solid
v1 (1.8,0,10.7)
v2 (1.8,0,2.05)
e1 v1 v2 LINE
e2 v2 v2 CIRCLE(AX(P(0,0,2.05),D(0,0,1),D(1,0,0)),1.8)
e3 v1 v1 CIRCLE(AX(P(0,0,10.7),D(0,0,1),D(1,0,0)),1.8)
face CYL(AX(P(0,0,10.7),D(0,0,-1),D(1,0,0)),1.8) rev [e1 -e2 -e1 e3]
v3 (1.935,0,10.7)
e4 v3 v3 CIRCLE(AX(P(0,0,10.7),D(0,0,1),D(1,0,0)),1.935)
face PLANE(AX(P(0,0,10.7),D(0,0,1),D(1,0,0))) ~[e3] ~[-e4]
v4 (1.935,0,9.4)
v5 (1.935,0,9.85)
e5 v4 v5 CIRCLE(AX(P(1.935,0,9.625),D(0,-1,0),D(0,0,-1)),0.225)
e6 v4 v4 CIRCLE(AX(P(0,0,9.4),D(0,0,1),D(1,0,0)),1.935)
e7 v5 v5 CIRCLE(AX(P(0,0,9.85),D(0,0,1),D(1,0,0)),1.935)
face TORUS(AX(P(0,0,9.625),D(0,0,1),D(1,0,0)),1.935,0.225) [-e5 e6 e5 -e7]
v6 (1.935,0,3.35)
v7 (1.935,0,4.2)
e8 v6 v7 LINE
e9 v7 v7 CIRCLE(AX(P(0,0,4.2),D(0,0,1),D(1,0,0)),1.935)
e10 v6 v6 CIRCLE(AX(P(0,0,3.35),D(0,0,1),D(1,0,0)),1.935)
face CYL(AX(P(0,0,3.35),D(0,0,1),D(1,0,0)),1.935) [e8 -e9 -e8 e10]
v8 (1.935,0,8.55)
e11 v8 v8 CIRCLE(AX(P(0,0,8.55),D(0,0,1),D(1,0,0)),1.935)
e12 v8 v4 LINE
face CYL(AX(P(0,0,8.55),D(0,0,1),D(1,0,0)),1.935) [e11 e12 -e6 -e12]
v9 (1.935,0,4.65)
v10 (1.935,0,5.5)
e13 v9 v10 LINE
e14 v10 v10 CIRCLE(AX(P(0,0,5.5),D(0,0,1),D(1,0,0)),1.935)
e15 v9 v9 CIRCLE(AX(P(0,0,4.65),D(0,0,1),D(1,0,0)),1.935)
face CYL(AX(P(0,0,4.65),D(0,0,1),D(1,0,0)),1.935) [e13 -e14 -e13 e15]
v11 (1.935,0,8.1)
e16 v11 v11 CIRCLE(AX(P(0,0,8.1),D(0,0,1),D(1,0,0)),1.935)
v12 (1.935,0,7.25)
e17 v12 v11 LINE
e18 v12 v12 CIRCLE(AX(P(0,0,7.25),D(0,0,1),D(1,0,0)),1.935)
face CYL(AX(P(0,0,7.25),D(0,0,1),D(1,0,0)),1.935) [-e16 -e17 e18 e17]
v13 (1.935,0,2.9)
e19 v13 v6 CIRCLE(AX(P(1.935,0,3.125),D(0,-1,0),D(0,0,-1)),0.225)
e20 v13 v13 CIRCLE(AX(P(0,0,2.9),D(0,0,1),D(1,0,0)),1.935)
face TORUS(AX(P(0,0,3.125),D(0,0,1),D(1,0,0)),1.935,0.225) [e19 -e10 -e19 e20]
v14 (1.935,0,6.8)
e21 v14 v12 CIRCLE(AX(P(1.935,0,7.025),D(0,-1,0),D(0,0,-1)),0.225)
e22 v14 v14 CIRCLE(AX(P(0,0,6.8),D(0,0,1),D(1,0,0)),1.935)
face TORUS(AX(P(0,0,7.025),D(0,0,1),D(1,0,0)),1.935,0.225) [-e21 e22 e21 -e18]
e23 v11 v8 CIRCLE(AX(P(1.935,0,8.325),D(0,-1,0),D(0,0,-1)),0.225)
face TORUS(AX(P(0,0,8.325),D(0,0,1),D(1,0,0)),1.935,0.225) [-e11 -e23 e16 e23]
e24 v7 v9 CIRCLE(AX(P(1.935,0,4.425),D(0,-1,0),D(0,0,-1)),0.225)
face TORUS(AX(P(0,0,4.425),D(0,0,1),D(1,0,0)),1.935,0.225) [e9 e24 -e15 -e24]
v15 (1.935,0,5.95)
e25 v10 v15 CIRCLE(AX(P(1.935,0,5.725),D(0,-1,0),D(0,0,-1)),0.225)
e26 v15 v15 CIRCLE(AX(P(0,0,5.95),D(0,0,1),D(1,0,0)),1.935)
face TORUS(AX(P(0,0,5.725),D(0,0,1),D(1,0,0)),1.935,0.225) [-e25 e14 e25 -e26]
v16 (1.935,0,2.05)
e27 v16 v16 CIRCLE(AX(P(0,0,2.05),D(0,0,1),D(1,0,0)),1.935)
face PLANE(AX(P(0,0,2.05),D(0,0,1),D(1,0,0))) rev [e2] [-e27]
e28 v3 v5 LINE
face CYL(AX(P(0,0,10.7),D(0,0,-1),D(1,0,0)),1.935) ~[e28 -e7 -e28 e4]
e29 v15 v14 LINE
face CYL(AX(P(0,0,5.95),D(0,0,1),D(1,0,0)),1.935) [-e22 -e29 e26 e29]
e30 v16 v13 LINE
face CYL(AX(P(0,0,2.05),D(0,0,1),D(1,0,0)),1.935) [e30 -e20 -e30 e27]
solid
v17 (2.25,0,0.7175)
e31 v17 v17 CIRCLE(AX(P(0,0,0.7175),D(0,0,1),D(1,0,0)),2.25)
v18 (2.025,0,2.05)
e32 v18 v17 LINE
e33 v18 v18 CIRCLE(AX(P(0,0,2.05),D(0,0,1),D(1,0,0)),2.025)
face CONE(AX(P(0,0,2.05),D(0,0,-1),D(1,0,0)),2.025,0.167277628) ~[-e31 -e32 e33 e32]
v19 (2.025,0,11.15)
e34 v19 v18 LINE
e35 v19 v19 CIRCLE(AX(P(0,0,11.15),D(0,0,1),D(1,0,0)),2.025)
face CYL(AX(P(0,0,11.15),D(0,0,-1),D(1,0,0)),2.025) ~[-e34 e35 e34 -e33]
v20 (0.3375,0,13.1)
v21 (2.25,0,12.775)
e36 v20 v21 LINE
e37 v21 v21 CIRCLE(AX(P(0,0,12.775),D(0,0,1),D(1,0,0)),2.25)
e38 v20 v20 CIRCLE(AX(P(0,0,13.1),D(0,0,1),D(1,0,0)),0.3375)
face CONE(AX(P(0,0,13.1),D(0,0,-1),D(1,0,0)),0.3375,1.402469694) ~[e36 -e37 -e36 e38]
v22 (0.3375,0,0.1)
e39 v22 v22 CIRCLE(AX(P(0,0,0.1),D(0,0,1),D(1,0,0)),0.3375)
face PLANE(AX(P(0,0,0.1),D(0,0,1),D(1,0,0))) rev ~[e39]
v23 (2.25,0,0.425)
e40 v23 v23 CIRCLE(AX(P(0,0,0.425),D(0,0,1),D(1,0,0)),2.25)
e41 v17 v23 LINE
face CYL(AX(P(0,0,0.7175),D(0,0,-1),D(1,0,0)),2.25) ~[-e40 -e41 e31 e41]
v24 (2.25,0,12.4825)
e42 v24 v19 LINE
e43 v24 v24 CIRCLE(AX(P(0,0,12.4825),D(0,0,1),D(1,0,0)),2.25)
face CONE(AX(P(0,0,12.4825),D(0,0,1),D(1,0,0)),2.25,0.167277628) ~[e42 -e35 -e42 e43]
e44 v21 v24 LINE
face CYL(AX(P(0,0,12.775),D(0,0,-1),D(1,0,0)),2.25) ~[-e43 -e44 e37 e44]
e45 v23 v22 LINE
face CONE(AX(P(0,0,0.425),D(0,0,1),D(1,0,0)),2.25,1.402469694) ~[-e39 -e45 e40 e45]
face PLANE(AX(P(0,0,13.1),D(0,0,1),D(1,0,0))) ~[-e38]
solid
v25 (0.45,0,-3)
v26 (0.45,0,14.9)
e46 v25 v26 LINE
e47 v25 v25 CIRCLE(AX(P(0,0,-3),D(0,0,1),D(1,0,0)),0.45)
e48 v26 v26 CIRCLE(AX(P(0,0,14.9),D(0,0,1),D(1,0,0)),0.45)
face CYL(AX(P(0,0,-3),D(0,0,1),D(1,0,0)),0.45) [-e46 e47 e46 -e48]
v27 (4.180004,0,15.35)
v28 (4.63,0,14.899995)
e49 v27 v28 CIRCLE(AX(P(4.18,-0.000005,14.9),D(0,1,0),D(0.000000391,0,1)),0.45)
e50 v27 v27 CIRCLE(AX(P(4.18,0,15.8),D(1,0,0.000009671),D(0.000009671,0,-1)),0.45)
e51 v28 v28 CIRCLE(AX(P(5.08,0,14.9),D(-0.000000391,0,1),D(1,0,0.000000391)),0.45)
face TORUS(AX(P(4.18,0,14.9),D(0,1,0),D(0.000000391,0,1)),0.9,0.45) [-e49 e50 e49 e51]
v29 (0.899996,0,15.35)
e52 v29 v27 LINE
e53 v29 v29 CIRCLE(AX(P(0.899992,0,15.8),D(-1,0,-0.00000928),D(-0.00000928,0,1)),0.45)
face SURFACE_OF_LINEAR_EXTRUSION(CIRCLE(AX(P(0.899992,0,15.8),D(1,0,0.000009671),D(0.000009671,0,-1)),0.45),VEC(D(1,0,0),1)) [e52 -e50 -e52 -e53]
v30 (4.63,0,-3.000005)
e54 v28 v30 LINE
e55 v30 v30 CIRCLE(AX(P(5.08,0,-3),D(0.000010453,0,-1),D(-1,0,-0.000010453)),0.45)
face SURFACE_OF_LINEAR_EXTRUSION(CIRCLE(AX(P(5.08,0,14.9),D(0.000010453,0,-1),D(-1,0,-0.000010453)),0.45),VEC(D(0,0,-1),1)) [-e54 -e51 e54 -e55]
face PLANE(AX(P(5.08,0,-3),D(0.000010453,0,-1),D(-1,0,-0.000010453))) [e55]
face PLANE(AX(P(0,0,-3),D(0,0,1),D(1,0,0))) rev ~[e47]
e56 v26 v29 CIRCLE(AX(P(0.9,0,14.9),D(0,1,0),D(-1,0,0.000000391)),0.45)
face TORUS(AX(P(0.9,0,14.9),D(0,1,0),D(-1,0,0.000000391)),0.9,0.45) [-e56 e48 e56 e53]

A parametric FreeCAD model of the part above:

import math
import FreeCAD as App
import Part
import Sketcher

V = App.Vector
Q = App.Units.Quantity

doc = App.newDocument("Part")
body = doc.addObject("PartDesign::Body", "Body")

# Sketch on XY plane
sketch1 = body.newObject("Sketcher::SketchObject", "Sketch")
sketch1.AttachmentSupport = (doc.getObject("XY_Plane"), [""])
sketch1.MapMode = "FlatFace"
sketch1.AttachmentOffset = App.Placement(V(0, 0, -2), App.Rotation())
sketch1.addGeometry(Part.Circle(V(0, 0, 0), V(0, 0, 1), 0.45), False)
sketch1.addConstraint(Sketcher.Constraint("Coincident", 0, 3, -1, 1))
sketch1.addConstraint(Sketcher.Constraint("Diameter", 0, Q("0.9 mm")))

# Sketch on XZ plane
sketch2 = body.newObject("Sketcher::SketchObject", "Sketch001")
sketch2.AttachmentSupport = (doc.getObject("XZ_Plane"), [""])
sketch2.MapMode = "FlatFace"
sketch2.addGeometry(Part.LineSegment(V(0, -3, 0), V(0, 14.9, 0)), False)
sketch2.addGeometry(Part.ArcOfCircle(Part.Circle(V(0.9, 14.9, 0), V(0, 0, 1), 0.9), math.radians(90.000532), math.radians(179.999978)), False)
sketch2.addGeometry(Part.LineSegment(V(0.899992, 15.8, 0), V(4.18, 15.8, 0)), False)
sketch2.addGeometry(Part.ArcOfCircle(Part.Circle(V(4.18, 14.9, 0), V(0, 0, 1), 0.9), math.radians(0.000022), math.radians(89.999978)), False)
sketch2.addGeometry(Part.LineSegment(V(5.08, 14.9, 0), V(5.08, -3, 0)), False)
sketch2.addConstraint(Sketcher.Constraint("Tangent", 0, 2, 1, 2))
sketch2.addConstraint(Sketcher.Constraint("Coincident", 1, 1, 2, 1))
sketch2.addConstraint(Sketcher.Constraint("Tangent", 2, 2, 3, 2))
sketch2.addConstraint(Sketcher.Constraint("Tangent", 3, 1, 4, 1))
sketch2.addConstraint(Sketcher.Constraint("Vertical", 0))
sketch2.addConstraint(Sketcher.Constraint("Horizontal", 2))
sketch2.addConstraint(Sketcher.Constraint("Vertical", 4))
sketch2.addConstraint(Sketcher.Constraint("Equal", 1, 3))
sketch2.addConstraint(Sketcher.Constraint("PointOnObject", 0, 1, -2))
sketch2.addConstraint(Sketcher.Constraint("Horizontal", 0, 1, 4, 2))
sketch2.addConstraint(Sketcher.Constraint("Radius", 1, Q("0.9 mm")))
sketch2.addConstraint(Sketcher.Constraint("DistanceY", 0, 1, 0, 2, Q("17.9 mm")))
sketch2.addConstraint(Sketcher.Constraint("DistanceY", 0, 1, -1, 1, Q("3 mm")))
sketch2.addConstraint(Sketcher.Constraint("DistanceX", -1, 1, 3, 3, Q("4.18 mm")))
sketch2.addConstraint(Sketcher.Constraint("DistanceX", 2, 1, 2, 2, Q("3.280008 mm")))
doc.recompute()

additivepipe = body.newObject("PartDesign::AdditivePipe", "AdditivePipe")
additivepipe.Profile = sketch1
additivepipe.Spine = (sketch2, ["Edge1", "Edge2", "Edge3", "Edge4", "Edge5"])
body2 = doc.addObject("PartDesign::Body", "Body001")

# Sketch on XZ plane
sketch3 = body2.newObject("Sketcher::SketchObject", "Sketch002")
sketch3.AttachmentSupport = (doc.getObject("XZ_Plane001"), [""])
sketch3.MapMode = "FlatFace"
sketch3.addGeometry(Part.LineSegment(V(0, 13.1, 0), V(0, 0.1, 0)), False)
sketch3.addGeometry(Part.LineSegment(V(0, 0.1, 0), V(0.3375, 0.1, 0)), False)
sketch3.addGeometry(Part.LineSegment(V(0.3375, 0.1, 0), V(2.25, 0.425, 0)), False)
sketch3.addGeometry(Part.LineSegment(V(2.25, 0.425, 0), V(2.25, 0.7175, 0)), False)
sketch3.addGeometry(Part.LineSegment(V(2.25, 0.7175, 0), V(2.025, 2.05, 0)), False)
sketch3.addGeometry(Part.LineSegment(V(2.025, 2.05, 0), V(2.025, 11.15, 0)), False)
sketch3.addGeometry(Part.LineSegment(V(2.025, 11.15, 0), V(2.25, 12.4825, 0)), False)
sketch3.addGeometry(Part.LineSegment(V(2.25, 12.4825, 0), V(2.25, 12.775, 0)), False)
sketch3.addGeometry(Part.LineSegment(V(2.25, 12.775, 0), V(0.3375, 13.1, 0)), False)
sketch3.addGeometry(Part.LineSegment(V(0.3375, 13.1, 0), V(0, 13.1, 0)), False)
sketch3.addConstraint(Sketcher.Constraint("Coincident", 0, 2, 1, 1))
sketch3.addConstraint(Sketcher.Constraint("Coincident", 1, 2, 2, 1))
sketch3.addConstraint(Sketcher.Constraint("Coincident", 2, 2, 3, 1))
sketch3.addConstraint(Sketcher.Constraint("Coincident", 3, 2, 4, 1))
sketch3.addConstraint(Sketcher.Constraint("Coincident", 4, 2, 5, 1))
sketch3.addConstraint(Sketcher.Constraint("Coincident", 5, 2, 6, 1))
sketch3.addConstraint(Sketcher.Constraint("Coincident", 6, 2, 7, 1))
sketch3.addConstraint(Sketcher.Constraint("Coincident", 7, 2, 8, 1))
sketch3.addConstraint(Sketcher.Constraint("Coincident", 8, 2, 9, 1))
sketch3.addConstraint(Sketcher.Constraint("Coincident", 9, 2, 0, 1))
sketch3.addConstraint(Sketcher.Constraint("Vertical", 0))
sketch3.addConstraint(Sketcher.Constraint("Horizontal", 1))
sketch3.addConstraint(Sketcher.Constraint("Vertical", 3))
sketch3.addConstraint(Sketcher.Constraint("Vertical", 5))
sketch3.addConstraint(Sketcher.Constraint("Vertical", 7))
sketch3.addConstraint(Sketcher.Constraint("Horizontal", 9))
sketch3.addConstraint(Sketcher.Constraint("PointOnObject", 0, 2, -2))
sketch3.addConstraint(Sketcher.Constraint("Vertical", 3, 2, 6, 2))
sketch3.addConstraint(Sketcher.Constraint("Vertical", 1, 2, 8, 2))
sketch3.addConstraint(Sketcher.Constraint("Equal", 3, 7))
sketch3.addConstraint(Sketcher.Constraint("Equal", 4, 6))
sketch3.addConstraint(Sketcher.Constraint("Equal", 2, 8))
sketch3.addConstraint(Sketcher.Constraint("DistanceY", 0, 2, 0, 1, Q("13 mm")))
sketch3.addConstraint(Sketcher.Constraint("DistanceY", 5, 1, 5, 2, Q("9.1 mm")))
sketch3.addConstraint(Sketcher.Constraint("DistanceY", -1, 1, 0, 2, Q("0.1 mm")))
sketch3.addConstraint(Sketcher.Constraint("DistanceX", -1, 1, 2, 2, Q("2.25 mm")))
sketch3.addConstraint(Sketcher.Constraint("DistanceY", 2, 2, 7, 2, Q("12.35 mm")))
sketch3.addConstraint(Sketcher.Constraint("DistanceX", 1, 1, 1, 2, Q("0.3375 mm")))
sketch3.addConstraint(Sketcher.Constraint("DistanceY", 3, 1, 3, 2, Q("0.2925 mm")))
sketch3.addConstraint(Sketcher.Constraint("DistanceX", -1, 1, 4, 2, Q("2.025 mm")))
revolution = body2.newObject("PartDesign::Revolution", "Revolution")
revolution.Profile = sketch3
revolution.ReferenceAxis = (sketch3, ["V_Axis"])
revolution.Angle = 360
body3 = doc.addObject("PartDesign::Body", "Body002")

# Sketch on XZ plane
sketch4 = body3.newObject("Sketcher::SketchObject", "Sketch003")
sketch4.AttachmentSupport = (doc.getObject("XZ_Plane002"), [""])
sketch4.MapMode = "FlatFace"
sketch4.addGeometry(Part.LineSegment(V(1.8, 10.7, 0), V(1.8, 2.05, 0)), False)
sketch4.addGeometry(Part.LineSegment(V(1.8, 2.05, 0), V(1.935, 2.05, 0)), False)
sketch4.addGeometry(Part.LineSegment(V(1.935, 2.05, 0), V(1.935, 2.9, 0)), False)
sketch4.addGeometry(Part.ArcOfCircle(Part.Circle(V(1.935, 3.125, 0), V(0, 0, 1), 0.225), math.radians(-90), math.radians(90)), False)
sketch4.addGeometry(Part.LineSegment(V(1.935, 3.35, 0), V(1.935, 4.2, 0)), False)
sketch4.addGeometry(Part.ArcOfCircle(Part.Circle(V(1.935, 4.425, 0), V(0, 0, 1), 0.225), math.radians(-90), math.radians(90)), False)
sketch4.addGeometry(Part.LineSegment(V(1.935, 4.65, 0), V(1.935, 5.5, 0)), False)
sketch4.addGeometry(Part.ArcOfCircle(Part.Circle(V(1.935, 5.725, 0), V(0, 0, 1), 0.225), math.radians(-90), math.radians(90)), False)
sketch4.addGeometry(Part.LineSegment(V(1.935, 5.95, 0), V(1.935, 6.8, 0)), False)
sketch4.addGeometry(Part.ArcOfCircle(Part.Circle(V(1.935, 7.025, 0), V(0, 0, 1), 0.225), math.radians(-90), math.radians(90)), False)
sketch4.addGeometry(Part.LineSegment(V(1.935, 7.25, 0), V(1.935, 8.1, 0)), False)
sketch4.addGeometry(Part.ArcOfCircle(Part.Circle(V(1.935, 8.325, 0), V(0, 0, 1), 0.225), math.radians(-90), math.radians(90)), False)
sketch4.addGeometry(Part.LineSegment(V(1.935, 8.55, 0), V(1.935, 9.4, 0)), False)
sketch4.addGeometry(Part.ArcOfCircle(Part.Circle(V(1.935, 9.625, 0), V(0, 0, 1), 0.225), math.radians(-90), math.radians(90)), False)
sketch4.addGeometry(Part.LineSegment(V(1.935, 9.85, 0), V(1.935, 10.7, 0)), False)
sketch4.addGeometry(Part.LineSegment(V(1.935, 10.7, 0), V(1.8, 10.7, 0)), False)
sketch4.addConstraint(Sketcher.Constraint("Coincident", 0, 2, 1, 1))
sketch4.addConstraint(Sketcher.Constraint("Coincident", 1, 2, 2, 1))
sketch4.addConstraint(Sketcher.Constraint("Coincident", 2, 2, 3, 1))
sketch4.addConstraint(Sketcher.Constraint("Coincident", 3, 2, 4, 1))
sketch4.addConstraint(Sketcher.Constraint("Coincident", 4, 2, 5, 1))
sketch4.addConstraint(Sketcher.Constraint("Coincident", 5, 2, 6, 1))
sketch4.addConstraint(Sketcher.Constraint("Coincident", 6, 2, 7, 1))
sketch4.addConstraint(Sketcher.Constraint("Coincident", 7, 2, 8, 1))
sketch4.addConstraint(Sketcher.Constraint("Coincident", 8, 2, 9, 1))
sketch4.addConstraint(Sketcher.Constraint("Coincident", 9, 2, 10, 1))
sketch4.addConstraint(Sketcher.Constraint("Coincident", 10, 2, 11, 1))
sketch4.addConstraint(Sketcher.Constraint("Coincident", 11, 2, 12, 1))
sketch4.addConstraint(Sketcher.Constraint("Coincident", 12, 2, 13, 1))
sketch4.addConstraint(Sketcher.Constraint("Coincident", 13, 2, 14, 1))
sketch4.addConstraint(Sketcher.Constraint("Coincident", 14, 2, 15, 1))
sketch4.addConstraint(Sketcher.Constraint("Coincident", 15, 2, 0, 1))
sketch4.addConstraint(Sketcher.Constraint("Vertical", 0))
sketch4.addConstraint(Sketcher.Constraint("Horizontal", 1))
sketch4.addConstraint(Sketcher.Constraint("Vertical", 2))
sketch4.addConstraint(Sketcher.Constraint("Vertical", 4))
sketch4.addConstraint(Sketcher.Constraint("Vertical", 6))
sketch4.addConstraint(Sketcher.Constraint("Vertical", 8))
sketch4.addConstraint(Sketcher.Constraint("Vertical", 10))
sketch4.addConstraint(Sketcher.Constraint("Vertical", 12))
sketch4.addConstraint(Sketcher.Constraint("Vertical", 14))
sketch4.addConstraint(Sketcher.Constraint("Horizontal", 15))
sketch4.addConstraint(Sketcher.Constraint("Equal", 3, 5))
sketch4.addConstraint(Sketcher.Constraint("Equal", 5, 7))
sketch4.addConstraint(Sketcher.Constraint("Equal", 7, 9))
sketch4.addConstraint(Sketcher.Constraint("Equal", 9, 11))
sketch4.addConstraint(Sketcher.Constraint("Equal", 11, 13))
sketch4.addConstraint(Sketcher.Constraint("Vertical", 3, 3, 5, 3))
sketch4.addConstraint(Sketcher.Constraint("Vertical", 5, 3, 7, 3))
sketch4.addConstraint(Sketcher.Constraint("Vertical", 7, 3, 9, 3))
sketch4.addConstraint(Sketcher.Constraint("Vertical", 9, 3, 11, 3))
sketch4.addConstraint(Sketcher.Constraint("Vertical", 11, 3, 13, 3))
sketch4.addConstraint(Sketcher.Constraint("Vertical", 13, 3, 1, 2))
sketch4.addConstraint(Sketcher.Constraint("Vertical", 2, 2, 3, 2))
sketch4.addConstraint(Sketcher.Constraint("Vertical", 4, 2, 5, 2))
sketch4.addConstraint(Sketcher.Constraint("Vertical", 6, 2, 7, 2))
sketch4.addConstraint(Sketcher.Constraint("Vertical", 8, 2, 9, 2))
sketch4.addConstraint(Sketcher.Constraint("Vertical", 10, 2, 11, 2))
sketch4.addConstraint(Sketcher.Constraint("Vertical", 12, 2, 13, 2))
sketch4.addConstraint(Sketcher.Constraint("Equal", 2, 4))
sketch4.addConstraint(Sketcher.Constraint("Equal", 4, 6))
sketch4.addConstraint(Sketcher.Constraint("Equal", 6, 8))
sketch4.addConstraint(Sketcher.Constraint("Equal", 8, 10))
sketch4.addConstraint(Sketcher.Constraint("Equal", 10, 12))
sketch4.addConstraint(Sketcher.Constraint("Equal", 12, 14))
sketch4.addConstraint(Sketcher.Constraint("Radius", 3, Q("0.225 mm")))
sketch4.addConstraint(Sketcher.Constraint("DistanceY", 0, 2, 0, 1, Q("8.65 mm")))
sketch4.addConstraint(Sketcher.Constraint("DistanceX", -1, 1, 0, 2, Q("1.8 mm")))
sketch4.addConstraint(Sketcher.Constraint("DistanceY", -1, 1, 2, 2, Q("2.9 mm")))
sketch4.addConstraint(Sketcher.Constraint("DistanceX", 1, 1, 1, 2, Q("0.135 mm")))
revolution2 = body3.newObject("PartDesign::Revolution", "Revolution001")
revolution2.Profile = sketch4
revolution2.ReferenceAxis = (sketch4, ["V_Axis"])
revolution2.Angle = 360

doc.recompute()
